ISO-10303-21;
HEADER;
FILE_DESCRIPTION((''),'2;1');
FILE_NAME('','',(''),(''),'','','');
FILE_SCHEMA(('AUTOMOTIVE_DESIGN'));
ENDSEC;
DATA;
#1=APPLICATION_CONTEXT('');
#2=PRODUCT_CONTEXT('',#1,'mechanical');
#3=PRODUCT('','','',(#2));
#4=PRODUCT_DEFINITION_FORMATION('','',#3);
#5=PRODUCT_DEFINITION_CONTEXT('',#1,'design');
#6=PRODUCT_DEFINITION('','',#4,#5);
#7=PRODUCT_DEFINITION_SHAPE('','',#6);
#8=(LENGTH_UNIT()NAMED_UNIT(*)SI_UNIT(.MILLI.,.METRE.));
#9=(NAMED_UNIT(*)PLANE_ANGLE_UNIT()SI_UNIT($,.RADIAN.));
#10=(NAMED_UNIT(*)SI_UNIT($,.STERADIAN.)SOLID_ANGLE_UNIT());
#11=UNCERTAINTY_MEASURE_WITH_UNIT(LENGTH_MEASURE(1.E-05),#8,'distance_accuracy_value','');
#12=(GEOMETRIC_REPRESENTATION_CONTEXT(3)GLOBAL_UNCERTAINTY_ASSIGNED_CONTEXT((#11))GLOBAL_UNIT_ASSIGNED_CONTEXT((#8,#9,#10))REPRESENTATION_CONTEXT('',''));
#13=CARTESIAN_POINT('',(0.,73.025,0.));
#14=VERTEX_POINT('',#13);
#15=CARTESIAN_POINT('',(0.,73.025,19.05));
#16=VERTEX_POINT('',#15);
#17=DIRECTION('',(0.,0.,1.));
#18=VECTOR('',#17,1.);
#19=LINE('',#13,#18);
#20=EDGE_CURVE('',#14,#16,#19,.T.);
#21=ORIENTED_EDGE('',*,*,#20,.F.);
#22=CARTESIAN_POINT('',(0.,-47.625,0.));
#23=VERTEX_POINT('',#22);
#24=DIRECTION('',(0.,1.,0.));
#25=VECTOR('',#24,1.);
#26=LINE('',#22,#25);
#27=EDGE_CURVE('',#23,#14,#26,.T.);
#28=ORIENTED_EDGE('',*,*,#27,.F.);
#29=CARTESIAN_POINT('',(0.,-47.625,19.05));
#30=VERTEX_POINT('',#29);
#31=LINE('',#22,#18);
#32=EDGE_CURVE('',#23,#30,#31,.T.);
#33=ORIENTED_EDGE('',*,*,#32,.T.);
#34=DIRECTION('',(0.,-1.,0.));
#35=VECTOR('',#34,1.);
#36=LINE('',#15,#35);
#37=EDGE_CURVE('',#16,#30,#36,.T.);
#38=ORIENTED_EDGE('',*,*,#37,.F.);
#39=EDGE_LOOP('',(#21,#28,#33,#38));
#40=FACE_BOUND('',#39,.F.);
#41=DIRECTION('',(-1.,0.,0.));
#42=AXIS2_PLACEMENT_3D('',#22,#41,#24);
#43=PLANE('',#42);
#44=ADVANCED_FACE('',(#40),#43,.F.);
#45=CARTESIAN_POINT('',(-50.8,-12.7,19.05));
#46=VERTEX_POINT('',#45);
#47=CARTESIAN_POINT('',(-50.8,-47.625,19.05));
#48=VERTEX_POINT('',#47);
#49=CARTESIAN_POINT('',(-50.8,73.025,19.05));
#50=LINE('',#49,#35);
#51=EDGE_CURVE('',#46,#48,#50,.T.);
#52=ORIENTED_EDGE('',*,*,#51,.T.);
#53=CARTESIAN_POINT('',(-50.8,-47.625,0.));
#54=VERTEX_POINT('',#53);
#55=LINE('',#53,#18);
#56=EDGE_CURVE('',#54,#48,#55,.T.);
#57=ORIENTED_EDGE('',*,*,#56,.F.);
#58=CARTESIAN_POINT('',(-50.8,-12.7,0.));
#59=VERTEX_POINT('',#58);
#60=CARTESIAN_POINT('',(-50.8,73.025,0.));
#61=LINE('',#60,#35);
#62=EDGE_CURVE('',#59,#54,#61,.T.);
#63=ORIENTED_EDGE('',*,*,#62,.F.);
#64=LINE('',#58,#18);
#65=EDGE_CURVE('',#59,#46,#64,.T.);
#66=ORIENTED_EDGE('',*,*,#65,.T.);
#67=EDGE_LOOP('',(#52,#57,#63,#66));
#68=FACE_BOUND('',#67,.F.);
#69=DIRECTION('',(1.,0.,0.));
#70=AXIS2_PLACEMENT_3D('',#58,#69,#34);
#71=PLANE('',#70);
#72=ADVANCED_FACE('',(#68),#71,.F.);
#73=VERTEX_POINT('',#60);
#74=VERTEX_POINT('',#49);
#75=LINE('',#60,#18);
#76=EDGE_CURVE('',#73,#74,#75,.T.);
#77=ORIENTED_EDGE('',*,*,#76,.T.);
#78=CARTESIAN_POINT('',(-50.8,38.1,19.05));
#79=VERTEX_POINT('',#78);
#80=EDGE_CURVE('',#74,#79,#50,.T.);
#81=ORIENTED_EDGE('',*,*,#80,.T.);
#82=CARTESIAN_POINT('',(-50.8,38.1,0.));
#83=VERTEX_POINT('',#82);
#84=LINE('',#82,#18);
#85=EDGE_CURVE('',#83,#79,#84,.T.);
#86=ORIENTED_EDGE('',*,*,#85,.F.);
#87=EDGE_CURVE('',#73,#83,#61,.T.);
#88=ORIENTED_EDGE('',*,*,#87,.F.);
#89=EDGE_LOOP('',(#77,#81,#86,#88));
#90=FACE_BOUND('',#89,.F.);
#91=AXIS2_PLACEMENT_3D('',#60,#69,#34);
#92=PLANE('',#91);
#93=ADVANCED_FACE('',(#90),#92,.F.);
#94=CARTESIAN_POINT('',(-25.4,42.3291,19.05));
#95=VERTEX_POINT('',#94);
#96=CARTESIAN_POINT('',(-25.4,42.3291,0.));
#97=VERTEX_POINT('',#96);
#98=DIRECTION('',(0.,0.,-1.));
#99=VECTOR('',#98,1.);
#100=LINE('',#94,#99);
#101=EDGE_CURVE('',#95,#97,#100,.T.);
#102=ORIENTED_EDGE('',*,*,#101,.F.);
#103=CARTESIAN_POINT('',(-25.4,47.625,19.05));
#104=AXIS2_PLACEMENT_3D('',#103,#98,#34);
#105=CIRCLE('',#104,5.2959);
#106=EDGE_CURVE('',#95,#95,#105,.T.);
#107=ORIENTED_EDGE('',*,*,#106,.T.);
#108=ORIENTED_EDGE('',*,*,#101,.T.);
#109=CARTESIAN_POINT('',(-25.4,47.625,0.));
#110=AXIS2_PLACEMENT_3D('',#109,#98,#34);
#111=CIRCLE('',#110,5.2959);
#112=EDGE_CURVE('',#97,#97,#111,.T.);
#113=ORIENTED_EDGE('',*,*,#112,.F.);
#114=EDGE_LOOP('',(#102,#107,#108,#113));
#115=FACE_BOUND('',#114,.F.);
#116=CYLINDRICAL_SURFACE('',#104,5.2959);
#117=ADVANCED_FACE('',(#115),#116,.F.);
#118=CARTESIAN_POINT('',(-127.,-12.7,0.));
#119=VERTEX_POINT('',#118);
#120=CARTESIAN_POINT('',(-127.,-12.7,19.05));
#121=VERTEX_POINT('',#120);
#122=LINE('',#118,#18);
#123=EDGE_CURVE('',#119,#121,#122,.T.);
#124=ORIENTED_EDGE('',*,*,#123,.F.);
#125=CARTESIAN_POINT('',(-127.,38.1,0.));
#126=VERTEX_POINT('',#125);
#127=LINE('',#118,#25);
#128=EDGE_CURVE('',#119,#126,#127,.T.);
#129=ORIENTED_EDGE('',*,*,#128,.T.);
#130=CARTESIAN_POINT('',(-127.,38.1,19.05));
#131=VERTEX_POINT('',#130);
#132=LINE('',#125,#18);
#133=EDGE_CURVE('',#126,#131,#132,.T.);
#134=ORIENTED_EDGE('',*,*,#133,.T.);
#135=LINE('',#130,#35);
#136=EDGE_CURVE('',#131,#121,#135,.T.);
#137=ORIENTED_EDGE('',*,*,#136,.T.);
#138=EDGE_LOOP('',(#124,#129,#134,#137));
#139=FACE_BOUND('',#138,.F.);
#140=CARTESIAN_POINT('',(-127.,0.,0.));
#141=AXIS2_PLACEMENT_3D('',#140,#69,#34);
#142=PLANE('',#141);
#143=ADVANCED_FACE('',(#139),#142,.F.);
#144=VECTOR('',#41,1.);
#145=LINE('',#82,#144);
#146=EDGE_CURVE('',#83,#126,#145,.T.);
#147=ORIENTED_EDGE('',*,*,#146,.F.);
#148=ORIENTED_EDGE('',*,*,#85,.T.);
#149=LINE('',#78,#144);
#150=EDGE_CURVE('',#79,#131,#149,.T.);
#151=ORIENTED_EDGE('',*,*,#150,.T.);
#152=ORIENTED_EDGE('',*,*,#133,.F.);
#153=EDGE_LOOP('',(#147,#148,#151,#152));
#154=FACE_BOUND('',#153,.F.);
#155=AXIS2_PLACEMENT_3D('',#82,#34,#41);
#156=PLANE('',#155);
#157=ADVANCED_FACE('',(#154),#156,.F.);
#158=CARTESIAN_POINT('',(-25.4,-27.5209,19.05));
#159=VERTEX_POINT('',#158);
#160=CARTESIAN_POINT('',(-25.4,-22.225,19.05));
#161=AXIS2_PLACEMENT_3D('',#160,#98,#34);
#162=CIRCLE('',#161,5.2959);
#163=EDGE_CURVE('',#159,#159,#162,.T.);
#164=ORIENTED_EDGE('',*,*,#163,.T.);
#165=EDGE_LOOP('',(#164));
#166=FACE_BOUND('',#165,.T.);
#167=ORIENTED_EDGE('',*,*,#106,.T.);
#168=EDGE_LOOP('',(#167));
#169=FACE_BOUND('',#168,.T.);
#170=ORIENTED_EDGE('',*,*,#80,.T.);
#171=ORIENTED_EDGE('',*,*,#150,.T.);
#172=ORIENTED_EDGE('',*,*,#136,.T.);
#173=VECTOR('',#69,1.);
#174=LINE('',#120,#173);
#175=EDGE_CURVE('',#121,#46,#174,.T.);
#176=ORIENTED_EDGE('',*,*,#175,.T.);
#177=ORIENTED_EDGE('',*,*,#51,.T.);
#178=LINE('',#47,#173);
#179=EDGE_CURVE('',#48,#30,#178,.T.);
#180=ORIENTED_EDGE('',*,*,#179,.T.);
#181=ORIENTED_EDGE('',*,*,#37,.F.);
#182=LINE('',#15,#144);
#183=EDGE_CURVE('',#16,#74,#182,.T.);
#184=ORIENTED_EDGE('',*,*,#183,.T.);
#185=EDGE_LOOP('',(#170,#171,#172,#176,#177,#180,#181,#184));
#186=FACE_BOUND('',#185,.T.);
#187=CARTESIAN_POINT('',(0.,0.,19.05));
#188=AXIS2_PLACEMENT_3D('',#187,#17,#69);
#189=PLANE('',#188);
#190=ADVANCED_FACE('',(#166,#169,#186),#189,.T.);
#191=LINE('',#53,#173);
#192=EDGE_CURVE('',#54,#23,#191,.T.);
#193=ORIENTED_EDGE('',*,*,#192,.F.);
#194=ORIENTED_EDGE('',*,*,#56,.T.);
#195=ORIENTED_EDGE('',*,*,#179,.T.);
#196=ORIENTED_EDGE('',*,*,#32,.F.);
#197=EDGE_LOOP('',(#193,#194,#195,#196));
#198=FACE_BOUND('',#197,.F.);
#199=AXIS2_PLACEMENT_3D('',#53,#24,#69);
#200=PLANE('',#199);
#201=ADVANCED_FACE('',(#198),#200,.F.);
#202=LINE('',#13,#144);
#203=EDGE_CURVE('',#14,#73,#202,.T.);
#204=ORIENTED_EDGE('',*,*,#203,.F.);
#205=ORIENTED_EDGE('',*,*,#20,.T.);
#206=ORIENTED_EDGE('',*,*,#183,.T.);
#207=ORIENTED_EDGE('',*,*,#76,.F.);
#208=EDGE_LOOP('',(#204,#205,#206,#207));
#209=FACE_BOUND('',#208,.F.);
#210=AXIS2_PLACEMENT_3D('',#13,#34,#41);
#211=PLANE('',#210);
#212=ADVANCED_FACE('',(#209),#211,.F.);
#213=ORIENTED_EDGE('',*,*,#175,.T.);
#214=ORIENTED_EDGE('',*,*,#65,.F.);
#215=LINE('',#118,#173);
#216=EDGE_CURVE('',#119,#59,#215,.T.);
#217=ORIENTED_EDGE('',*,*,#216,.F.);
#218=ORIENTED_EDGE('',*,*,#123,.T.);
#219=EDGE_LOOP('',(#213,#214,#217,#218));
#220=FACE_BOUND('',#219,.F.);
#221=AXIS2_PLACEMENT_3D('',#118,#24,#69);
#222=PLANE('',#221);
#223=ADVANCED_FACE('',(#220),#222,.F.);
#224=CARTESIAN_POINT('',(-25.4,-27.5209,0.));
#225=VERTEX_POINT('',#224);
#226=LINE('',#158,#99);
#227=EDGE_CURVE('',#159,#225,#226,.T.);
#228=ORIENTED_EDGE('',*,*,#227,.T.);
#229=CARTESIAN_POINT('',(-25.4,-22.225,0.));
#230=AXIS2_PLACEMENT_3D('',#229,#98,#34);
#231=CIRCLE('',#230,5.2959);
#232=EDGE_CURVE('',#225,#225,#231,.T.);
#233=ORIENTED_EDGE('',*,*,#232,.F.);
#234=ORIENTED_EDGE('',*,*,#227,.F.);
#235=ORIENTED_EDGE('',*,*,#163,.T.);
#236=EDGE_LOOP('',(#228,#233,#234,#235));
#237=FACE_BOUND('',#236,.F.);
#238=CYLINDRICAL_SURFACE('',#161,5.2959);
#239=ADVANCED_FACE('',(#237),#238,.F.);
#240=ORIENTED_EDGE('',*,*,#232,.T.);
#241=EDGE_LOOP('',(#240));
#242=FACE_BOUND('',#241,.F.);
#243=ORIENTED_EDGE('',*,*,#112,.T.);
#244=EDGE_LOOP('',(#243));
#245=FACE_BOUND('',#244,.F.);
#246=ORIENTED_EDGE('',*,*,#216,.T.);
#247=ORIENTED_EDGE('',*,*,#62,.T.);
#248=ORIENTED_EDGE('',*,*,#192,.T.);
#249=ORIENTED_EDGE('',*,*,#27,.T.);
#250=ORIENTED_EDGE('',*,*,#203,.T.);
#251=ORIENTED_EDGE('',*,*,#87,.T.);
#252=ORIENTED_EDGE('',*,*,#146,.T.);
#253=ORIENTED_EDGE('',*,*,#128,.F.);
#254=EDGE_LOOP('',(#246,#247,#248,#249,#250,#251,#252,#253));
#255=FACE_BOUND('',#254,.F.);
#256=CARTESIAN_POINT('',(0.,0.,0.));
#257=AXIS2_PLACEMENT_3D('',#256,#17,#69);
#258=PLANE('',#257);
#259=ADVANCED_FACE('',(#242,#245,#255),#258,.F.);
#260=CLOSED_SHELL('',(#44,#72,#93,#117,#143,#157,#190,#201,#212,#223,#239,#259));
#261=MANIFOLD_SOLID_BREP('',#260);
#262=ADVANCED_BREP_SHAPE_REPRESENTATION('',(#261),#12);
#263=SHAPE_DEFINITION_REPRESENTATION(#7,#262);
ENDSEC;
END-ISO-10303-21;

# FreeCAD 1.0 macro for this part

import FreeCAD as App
import Part
import Sketcher

V = App.Vector
Q = App.Units.Quantity


def add_polygon(sketch, points):
    """Adds a closed chain of lines whose ends are joined by coincident constraints."""
    first, n = sketch.GeometryCount, len(points)
    for a, b in zip(points, points[1:] + points[:1]):
        sketch.addGeometry(Part.LineSegment(App.Vector(*a, 0), App.Vector(*b, 0)), False)
    for i in range(n):
        sketch.addConstraint(Sketcher.Constraint("Coincident", first + i, 2, first + (i + 1) % n, 1))

doc = App.newDocument("Part")
body = doc.addObject("PartDesign::Body", "Body")

# Sketch on XY plane
sketch1 = body.newObject("Sketcher::SketchObject", "Sketch")
sketch1.AttachmentSupport = (doc.getObject("XY_Plane"), [""])
sketch1.MapMode = "FlatFace"
add_polygon(sketch1, [(0, -48), (0, 73), (-51, 73), (-51, 38), (-127, 38), (-127, -13), (-51, -13), (-51, -48)])  # lines 0-7
sketch1.addConstraint([
    Sketcher.Constraint("Vertical", 0),
    Sketcher.Constraint("Horizontal", 1),
    Sketcher.Constraint("Vertical", 2),
    Sketcher.Constraint("Horizontal", 3),
    Sketcher.Constraint("Vertical", 4),
    Sketcher.Constraint("Horizontal", 5),
    Sketcher.Constraint("Vertical", 6),
    Sketcher.Constraint("Horizontal", 7),
    Sketcher.Constraint("PointOnObject", 0, 2, -2),
    Sketcher.Constraint("Vertical", 2, 2, 5, 2),
    Sketcher.Constraint("Equal", 7, 4),
    Sketcher.Constraint("Equal", 2, 6),
    Sketcher.Constraint("DistanceX", 1, 2, 1, 1, Q("2 in")),
    Sketcher.Constraint("DistanceY", 0, 1, 0, 2, Q("4.75 in")),
    Sketcher.Constraint("DistanceX", 3, 2, 3, 1, Q("3 in")),
    Sketcher.Constraint("DistanceY", -1, 1, 2, 2, Q("1.5 in")),
])
pad1 = body.newObject("PartDesign::Pad", "Pad")
pad1.Profile = sketch1
pad1.Length = Q("0.75 in")

# Sketch on XY plane
sketch2 = body.newObject("Sketcher::SketchObject", "Sketch001")
sketch2.AttachmentSupport = (doc.getObject("XY_Plane"), [""])
sketch2.MapMode = "FlatFace"
sketch2.AttachmentOffset = App.Placement(V(0, 0, 0.75 * 25.4), App.Rotation())
sketch2.addGeometry(Part.Circle(V(-25, 48, 0), V(0, 0, 1), 5), False)
sketch2.addConstraint([
    Sketcher.Constraint("Diameter", 0, Q("0.417 in")),
    Sketcher.Constraint("DistanceX", 0, 3, -1, 1, Q("1 in")),
    Sketcher.Constraint("DistanceY", -1, 1, 0, 3, Q("1.875 in")),
])
doc.recompute()
hole = body.newObject("PartDesign::Hole", "Hole")
hole.Profile = sketch2
hole.ThreadType = "None"
hole.Diameter = Q("0.417 in")
hole.DepthType = "ThroughAll"

# Sketch on XY plane
sketch3 = body.newObject("Sketcher::SketchObject", "Sketch002")
sketch3.AttachmentSupport = (doc.getObject("XY_Plane"), [""])
sketch3.MapMode = "FlatFace"
sketch3.AttachmentOffset = App.Placement(V(0, 0, 0.75 * 25.4), App.Rotation())
sketch3.addGeometry(Part.Circle(V(-25, -22, 0), V(0, 0, 1), 5), False)
sketch3.addConstraint([
    Sketcher.Constraint("Diameter", 0, Q("0.417 in")),
    Sketcher.Constraint("DistanceX", 0, 3, -1, 1, Q("1 in")),
    Sketcher.Constraint("DistanceY", 0, 3, -1, 1, Q("0.875 in")),
])
doc.recompute()
hole2 = body.newObject("PartDesign::Hole", "Hole001")
hole2.Profile = sketch3
hole2.ThreadType = "None"
hole2.Diameter = Q("0.417 in")
hole2.DepthType = "ThroughAll"

doc.recompute()
